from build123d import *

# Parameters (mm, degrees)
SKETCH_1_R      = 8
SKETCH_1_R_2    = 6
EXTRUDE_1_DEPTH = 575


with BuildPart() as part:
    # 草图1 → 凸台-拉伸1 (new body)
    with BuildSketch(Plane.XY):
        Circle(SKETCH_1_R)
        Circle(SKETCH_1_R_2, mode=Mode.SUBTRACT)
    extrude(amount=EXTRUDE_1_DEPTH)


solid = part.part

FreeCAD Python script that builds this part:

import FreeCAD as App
import Part
import Sketcher
Q = App.Units.Quantity

doc = App.newDocument("Part")
body = doc.addObject("PartDesign::Body", "Body")

# Sketch on XY plane
sketch1 = body.newObject("Sketcher::SketchObject", "Sketch")
sketch1.AttachmentSupport = (doc.getObject("XY_Plane"), [""])
sketch1.MapMode = "FlatFace"
sketch1.addGeometry([
    Part.Circle(App.Vector(0, 0, 0), App.Vector(0, 0, 1), 8),
    Part.Circle(App.Vector(0, 0, 0), App.Vector(0, 0, 1), 6),
], False)
sketch1.addConstraint([
    Sketcher.Constraint("Coincident", 0, 3, -1, 1),
    Sketcher.Constraint("Coincident", 1, 3, -1, 1),
    Sketcher.Constraint("Diameter", 0, Q("16 mm")),
    Sketcher.Constraint("Diameter", 1, Q("12 mm")),
])
pad1 = body.newObject("PartDesign::Pad", "Pad")
pad1.Profile = sketch1
pad1.Length = 575

doc.recompute()
